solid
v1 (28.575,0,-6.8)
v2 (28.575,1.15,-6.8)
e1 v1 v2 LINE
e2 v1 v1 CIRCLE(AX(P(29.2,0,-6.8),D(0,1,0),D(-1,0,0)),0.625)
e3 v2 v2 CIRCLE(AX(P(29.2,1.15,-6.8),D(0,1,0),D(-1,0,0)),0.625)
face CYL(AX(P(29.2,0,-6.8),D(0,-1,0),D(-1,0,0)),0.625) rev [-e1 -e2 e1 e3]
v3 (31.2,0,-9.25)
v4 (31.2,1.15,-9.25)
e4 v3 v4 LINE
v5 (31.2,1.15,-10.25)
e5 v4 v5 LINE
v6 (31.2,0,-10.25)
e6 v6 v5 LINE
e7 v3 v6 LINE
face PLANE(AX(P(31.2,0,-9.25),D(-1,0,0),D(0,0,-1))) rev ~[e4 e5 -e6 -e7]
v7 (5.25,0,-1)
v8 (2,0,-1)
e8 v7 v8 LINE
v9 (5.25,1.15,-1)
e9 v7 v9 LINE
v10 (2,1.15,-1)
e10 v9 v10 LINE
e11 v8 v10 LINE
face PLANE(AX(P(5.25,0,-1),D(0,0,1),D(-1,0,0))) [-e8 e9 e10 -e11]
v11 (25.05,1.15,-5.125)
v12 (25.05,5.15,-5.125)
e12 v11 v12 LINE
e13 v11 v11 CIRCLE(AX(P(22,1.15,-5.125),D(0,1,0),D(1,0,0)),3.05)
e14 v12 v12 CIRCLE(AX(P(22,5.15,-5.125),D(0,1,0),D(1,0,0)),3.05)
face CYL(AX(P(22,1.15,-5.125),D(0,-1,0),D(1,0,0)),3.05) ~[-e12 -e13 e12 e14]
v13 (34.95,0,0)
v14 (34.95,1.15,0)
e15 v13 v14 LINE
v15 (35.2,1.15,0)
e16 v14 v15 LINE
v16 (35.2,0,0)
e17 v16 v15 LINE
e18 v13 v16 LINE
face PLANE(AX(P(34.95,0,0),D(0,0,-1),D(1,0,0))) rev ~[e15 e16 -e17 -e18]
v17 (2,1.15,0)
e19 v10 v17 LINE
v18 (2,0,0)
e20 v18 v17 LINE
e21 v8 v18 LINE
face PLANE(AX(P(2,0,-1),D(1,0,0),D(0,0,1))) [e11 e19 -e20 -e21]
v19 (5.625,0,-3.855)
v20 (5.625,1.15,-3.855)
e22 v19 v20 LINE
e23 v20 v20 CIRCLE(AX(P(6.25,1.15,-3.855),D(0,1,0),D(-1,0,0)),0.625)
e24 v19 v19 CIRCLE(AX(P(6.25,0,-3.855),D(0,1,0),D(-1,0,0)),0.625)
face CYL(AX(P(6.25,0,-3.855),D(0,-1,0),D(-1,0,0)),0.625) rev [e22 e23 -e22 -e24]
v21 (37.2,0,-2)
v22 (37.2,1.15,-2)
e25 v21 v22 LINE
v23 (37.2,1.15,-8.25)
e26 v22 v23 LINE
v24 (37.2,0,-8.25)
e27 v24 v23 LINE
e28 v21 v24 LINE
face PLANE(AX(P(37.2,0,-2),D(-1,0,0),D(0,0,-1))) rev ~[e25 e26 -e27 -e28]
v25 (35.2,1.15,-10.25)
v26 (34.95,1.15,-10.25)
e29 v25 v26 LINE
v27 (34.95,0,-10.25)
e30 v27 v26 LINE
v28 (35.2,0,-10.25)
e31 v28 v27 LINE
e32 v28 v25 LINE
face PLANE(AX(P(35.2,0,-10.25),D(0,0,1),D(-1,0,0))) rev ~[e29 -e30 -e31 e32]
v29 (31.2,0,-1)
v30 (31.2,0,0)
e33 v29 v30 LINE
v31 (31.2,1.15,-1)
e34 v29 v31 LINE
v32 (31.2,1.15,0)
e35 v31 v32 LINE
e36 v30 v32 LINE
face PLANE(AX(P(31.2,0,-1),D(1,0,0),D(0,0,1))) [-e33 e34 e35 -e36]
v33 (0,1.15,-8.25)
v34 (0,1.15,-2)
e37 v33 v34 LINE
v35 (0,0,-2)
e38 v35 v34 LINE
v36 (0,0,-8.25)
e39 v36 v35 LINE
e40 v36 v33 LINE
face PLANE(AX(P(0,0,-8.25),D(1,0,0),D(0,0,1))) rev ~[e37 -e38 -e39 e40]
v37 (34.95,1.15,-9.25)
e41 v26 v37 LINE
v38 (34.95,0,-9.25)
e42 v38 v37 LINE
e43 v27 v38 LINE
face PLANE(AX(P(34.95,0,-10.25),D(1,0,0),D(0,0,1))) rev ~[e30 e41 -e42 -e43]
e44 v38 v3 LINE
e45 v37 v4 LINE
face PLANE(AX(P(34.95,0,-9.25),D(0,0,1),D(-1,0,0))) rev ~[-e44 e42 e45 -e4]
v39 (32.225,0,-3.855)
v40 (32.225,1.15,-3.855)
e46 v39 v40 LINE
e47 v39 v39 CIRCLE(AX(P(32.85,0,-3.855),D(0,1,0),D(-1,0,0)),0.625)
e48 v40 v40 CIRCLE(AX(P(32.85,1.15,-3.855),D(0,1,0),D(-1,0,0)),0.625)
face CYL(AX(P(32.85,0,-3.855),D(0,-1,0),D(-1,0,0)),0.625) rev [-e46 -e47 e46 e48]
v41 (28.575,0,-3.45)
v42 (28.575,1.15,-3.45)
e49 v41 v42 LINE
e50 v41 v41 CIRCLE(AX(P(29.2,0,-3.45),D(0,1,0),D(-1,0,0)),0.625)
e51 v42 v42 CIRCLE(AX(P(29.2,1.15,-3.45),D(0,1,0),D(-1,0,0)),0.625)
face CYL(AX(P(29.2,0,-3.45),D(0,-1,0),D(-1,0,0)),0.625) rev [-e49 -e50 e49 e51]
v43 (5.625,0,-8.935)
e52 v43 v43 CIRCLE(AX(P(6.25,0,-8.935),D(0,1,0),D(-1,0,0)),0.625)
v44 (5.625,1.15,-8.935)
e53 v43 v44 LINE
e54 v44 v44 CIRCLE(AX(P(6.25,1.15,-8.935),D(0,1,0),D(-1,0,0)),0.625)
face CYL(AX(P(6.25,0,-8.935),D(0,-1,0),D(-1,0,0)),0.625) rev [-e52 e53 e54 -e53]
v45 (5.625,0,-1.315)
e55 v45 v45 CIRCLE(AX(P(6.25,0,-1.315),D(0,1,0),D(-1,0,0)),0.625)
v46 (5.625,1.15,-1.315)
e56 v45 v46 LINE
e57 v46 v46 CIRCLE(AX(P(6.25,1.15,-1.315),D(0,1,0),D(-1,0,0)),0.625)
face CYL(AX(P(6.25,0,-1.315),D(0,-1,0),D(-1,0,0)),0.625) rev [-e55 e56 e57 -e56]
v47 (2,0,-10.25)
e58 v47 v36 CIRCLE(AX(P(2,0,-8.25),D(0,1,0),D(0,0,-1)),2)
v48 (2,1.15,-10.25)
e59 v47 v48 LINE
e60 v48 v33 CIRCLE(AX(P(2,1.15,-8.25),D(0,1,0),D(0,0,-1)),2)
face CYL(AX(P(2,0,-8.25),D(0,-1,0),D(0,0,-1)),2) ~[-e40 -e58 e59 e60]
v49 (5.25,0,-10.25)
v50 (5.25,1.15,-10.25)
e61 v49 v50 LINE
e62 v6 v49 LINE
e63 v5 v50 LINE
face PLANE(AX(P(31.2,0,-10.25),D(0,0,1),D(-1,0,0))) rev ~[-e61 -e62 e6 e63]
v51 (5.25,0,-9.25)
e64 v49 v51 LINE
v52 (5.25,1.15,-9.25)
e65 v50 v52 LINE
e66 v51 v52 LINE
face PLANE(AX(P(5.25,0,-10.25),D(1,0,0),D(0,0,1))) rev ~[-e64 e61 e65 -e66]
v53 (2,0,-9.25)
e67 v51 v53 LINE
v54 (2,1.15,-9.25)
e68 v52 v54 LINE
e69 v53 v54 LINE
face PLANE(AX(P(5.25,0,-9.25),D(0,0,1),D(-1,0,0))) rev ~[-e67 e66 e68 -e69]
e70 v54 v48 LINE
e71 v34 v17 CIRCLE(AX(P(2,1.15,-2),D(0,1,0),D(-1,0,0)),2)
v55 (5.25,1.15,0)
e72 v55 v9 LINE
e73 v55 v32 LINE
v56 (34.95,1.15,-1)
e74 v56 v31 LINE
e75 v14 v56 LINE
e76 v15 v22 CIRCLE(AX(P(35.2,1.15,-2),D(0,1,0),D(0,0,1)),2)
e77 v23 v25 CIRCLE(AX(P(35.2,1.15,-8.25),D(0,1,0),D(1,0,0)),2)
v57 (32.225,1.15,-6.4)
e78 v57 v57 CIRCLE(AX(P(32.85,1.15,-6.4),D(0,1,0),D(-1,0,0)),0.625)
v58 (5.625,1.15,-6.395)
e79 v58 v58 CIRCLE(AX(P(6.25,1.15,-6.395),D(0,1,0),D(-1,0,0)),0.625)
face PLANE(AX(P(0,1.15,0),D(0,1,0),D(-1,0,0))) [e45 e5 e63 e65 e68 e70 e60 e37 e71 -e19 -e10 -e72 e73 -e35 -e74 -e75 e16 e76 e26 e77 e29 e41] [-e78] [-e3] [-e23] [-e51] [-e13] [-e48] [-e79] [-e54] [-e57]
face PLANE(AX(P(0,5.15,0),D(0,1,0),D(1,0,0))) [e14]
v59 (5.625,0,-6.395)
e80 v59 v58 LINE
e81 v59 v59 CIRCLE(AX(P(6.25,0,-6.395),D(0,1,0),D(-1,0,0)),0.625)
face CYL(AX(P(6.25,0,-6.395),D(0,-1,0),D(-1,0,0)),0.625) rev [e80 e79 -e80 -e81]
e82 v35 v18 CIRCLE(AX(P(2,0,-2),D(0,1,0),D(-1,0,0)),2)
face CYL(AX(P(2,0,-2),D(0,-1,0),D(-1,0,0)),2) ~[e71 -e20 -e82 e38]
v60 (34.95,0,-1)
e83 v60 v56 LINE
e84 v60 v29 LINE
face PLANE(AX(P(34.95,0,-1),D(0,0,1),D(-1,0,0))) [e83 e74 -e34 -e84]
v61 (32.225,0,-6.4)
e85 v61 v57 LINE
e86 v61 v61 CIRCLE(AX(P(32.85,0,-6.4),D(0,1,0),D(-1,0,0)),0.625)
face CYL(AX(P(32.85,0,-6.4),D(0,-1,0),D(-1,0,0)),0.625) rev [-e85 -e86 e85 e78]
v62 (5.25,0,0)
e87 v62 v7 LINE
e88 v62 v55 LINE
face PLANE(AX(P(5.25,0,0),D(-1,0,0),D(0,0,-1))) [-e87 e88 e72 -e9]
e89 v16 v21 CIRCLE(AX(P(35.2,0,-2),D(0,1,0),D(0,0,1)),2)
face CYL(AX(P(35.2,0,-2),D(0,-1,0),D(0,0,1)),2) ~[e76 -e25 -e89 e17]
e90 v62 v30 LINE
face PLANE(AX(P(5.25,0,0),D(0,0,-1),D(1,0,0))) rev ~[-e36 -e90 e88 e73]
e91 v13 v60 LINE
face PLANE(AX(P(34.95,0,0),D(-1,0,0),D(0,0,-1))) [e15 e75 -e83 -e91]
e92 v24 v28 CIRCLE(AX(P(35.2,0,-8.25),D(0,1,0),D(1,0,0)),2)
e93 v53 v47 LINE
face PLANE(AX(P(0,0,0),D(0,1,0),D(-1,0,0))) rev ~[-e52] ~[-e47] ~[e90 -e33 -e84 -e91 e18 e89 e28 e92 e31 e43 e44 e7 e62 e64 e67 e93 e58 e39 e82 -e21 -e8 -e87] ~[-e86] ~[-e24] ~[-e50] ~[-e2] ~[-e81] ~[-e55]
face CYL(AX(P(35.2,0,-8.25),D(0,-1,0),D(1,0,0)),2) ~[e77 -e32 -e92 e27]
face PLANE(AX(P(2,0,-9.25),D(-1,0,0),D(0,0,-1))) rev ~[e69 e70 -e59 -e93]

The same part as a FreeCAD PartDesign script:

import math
import FreeCAD as App
import Part
import Sketcher

V = App.Vector
Q = App.Units.Quantity

doc = App.newDocument("Part")
body = doc.addObject("PartDesign::Body", "Body")

# Sketch on XZ plane
sketch1 = doc.addObject("Sketcher::SketchObject", "Sketch")
body.addObject(sketch1)
sketch1.AttachmentSupport = (doc.XZ_Plane, [""])
sketch1.MapMode = "FlatFace"
sketch1.addGeometry(Part.ArcOfCircle(Part.Circle(V(35.2, -2, 0), V(0, 0, 1), 2), math.radians(0), math.radians(90)), False)
sketch1.addGeometry(Part.LineSegment(V(37.2, -2, 0), V(37.2, -8.25, 0)), False)
sketch1.addGeometry(Part.ArcOfCircle(Part.Circle(V(35.2, -8.25, 0), V(0, 0, 1), 2), math.radians(-90), math.radians(0)), False)
sketch1.addGeometry(Part.LineSegment(V(35.2, -10.25, 0), V(34.95, -10.25, 0)), False)
sketch1.addGeometry(Part.LineSegment(V(34.95, -10.25, 0), V(34.95, -9.25, 0)), False)
sketch1.addGeometry(Part.LineSegment(V(34.95, -9.25, 0), V(31.2, -9.25, 0)), False)
sketch1.addGeometry(Part.LineSegment(V(31.2, -9.25, 0), V(31.2, -10.25, 0)), False)
sketch1.addGeometry(Part.LineSegment(V(31.2, -10.25, 0), V(5.25, -10.25, 0)), False)
sketch1.addGeometry(Part.LineSegment(V(5.25, -10.25, 0), V(5.25, -9.25, 0)), False)
sketch1.addGeometry(Part.LineSegment(V(5.25, -9.25, 0), V(2, -9.25, 0)), False)
sketch1.addGeometry(Part.LineSegment(V(2, -9.25, 0), V(2, -10.25, 0)), False)
sketch1.addGeometry(Part.ArcOfCircle(Part.Circle(V(2, -8.25, 0), V(0, 0, 1), 2), math.radians(180), math.radians(270)), False)
sketch1.addGeometry(Part.LineSegment(V(0, -8.25, 0), V(0, -2, 0)), False)
sketch1.addGeometry(Part.ArcOfCircle(Part.Circle(V(2, -2, 0), V(0, 0, 1), 2), math.radians(90), math.radians(180)), False)
sketch1.addGeometry(Part.LineSegment(V(2, 0, 0), V(2, -1, 0)), False)
sketch1.addGeometry(Part.LineSegment(V(2, -1, 0), V(5.25, -1, 0)), False)
sketch1.addGeometry(Part.LineSegment(V(5.25, -1, 0), V(5.25, 0, 0)), False)
sketch1.addGeometry(Part.LineSegment(V(5.25, 0, 0), V(31.2, 0, 0)), False)
sketch1.addGeometry(Part.LineSegment(V(31.2, 0, 0), V(31.2, -1, 0)), False)
sketch1.addGeometry(Part.LineSegment(V(31.2, -1, 0), V(34.95, -1, 0)), False)
sketch1.addGeometry(Part.LineSegment(V(34.95, -1, 0), V(34.95, 0, 0)), False)
sketch1.addGeometry(Part.LineSegment(V(34.95, 0, 0), V(35.2, 0, 0)), False)
sketch1.addGeometry(Part.Circle(V(29.2, -6.8, 0), V(0, 0, 1), 0.625), False)
sketch1.addGeometry(Part.Circle(V(32.85, -6.4, 0), V(0, 0, 1), 0.625), False)
sketch1.addGeometry(Part.Circle(V(6.25, -8.935, 0), V(0, 0, 1), 0.625), False)
sketch1.addGeometry(Part.Circle(V(6.25, -6.395, 0), V(0, 0, 1), 0.625), False)
sketch1.addGeometry(Part.Circle(V(32.85, -3.855, 0), V(0, 0, 1), 0.625), False)
sketch1.addGeometry(Part.Circle(V(29.2, -3.45, 0), V(0, 0, 1), 0.625), False)
sketch1.addGeometry(Part.Circle(V(6.25, -3.855, 0), V(0, 0, 1), 0.625), False)
sketch1.addGeometry(Part.Circle(V(6.25, -1.315, 0), V(0, 0, 1), 0.625), False)
sketch1.addConstraint(Sketcher.Constraint("Tangent", 0, 1, 1, 1))
sketch1.addConstraint(Sketcher.Constraint("Tangent", 1, 2, 2, 2))
sketch1.addConstraint(Sketcher.Constraint("Tangent", 2, 1, 3, 1))
sketch1.addConstraint(Sketcher.Constraint("Coincident", 3, 2, 4, 1))
sketch1.addConstraint(Sketcher.Constraint("Coincident", 4, 2, 5, 1))
sketch1.addConstraint(Sketcher.Constraint("Coincident", 5, 2, 6, 1))
sketch1.addConstraint(Sketcher.Constraint("Coincident", 6, 2, 7, 1))
sketch1.addConstraint(Sketcher.Constraint("Coincident", 7, 2, 8, 1))
sketch1.addConstraint(Sketcher.Constraint("Coincident", 8, 2, 9, 1))
sketch1.addConstraint(Sketcher.Constraint("Coincident", 9, 2, 10, 1))
sketch1.addConstraint(Sketcher.Constraint("Coincident", 10, 2, 11, 2))
sketch1.addConstraint(Sketcher.Constraint("Tangent", 11, 1, 12, 1))
sketch1.addConstraint(Sketcher.Constraint("Tangent", 12, 2, 13, 2))
sketch1.addConstraint(Sketcher.Constraint("Coincident", 13, 1, 14, 1))
sketch1.addConstraint(Sketcher.Constraint("Coincident", 14, 2, 15, 1))
sketch1.addConstraint(Sketcher.Constraint("Coincident", 15, 2, 16, 1))
sketch1.addConstraint(Sketcher.Constraint("Coincident", 16, 2, 17, 1))
sketch1.addConstraint(Sketcher.Constraint("Coincident", 17, 2, 18, 1))
sketch1.addConstraint(Sketcher.Constraint("Coincident", 18, 2, 19, 1))
sketch1.addConstraint(Sketcher.Constraint("Coincident", 19, 2, 20, 1))
sketch1.addConstraint(Sketcher.Constraint("Coincident", 20, 2, 21, 1))
sketch1.addConstraint(Sketcher.Constraint("Tangent", 21, 2, 0, 2))
sketch1.addConstraint(Sketcher.Constraint("Vertical", 1))
sketch1.addConstraint(Sketcher.Constraint("Horizontal", 3))
sketch1.addConstraint(Sketcher.Constraint("Vertical", 4))
sketch1.addConstraint(Sketcher.Constraint("Horizontal", 5))
sketch1.addConstraint(Sketcher.Constraint("Vertical", 6))
sketch1.addConstraint(Sketcher.Constraint("Horizontal", 7))
sketch1.addConstraint(Sketcher.Constraint("Vertical", 8))
sketch1.addConstraint(Sketcher.Constraint("Horizontal", 9))
sketch1.addConstraint(Sketcher.Constraint("Vertical", 10))
sketch1.addConstraint(Sketcher.Constraint("Vertical", 12))
sketch1.addConstraint(Sketcher.Constraint("Vertical", 14))
sketch1.addConstraint(Sketcher.Constraint("Horizontal", 15))
sketch1.addConstraint(Sketcher.Constraint("Vertical", 16))
sketch1.addConstraint(Sketcher.Constraint("Horizontal", 17))
sketch1.addConstraint(Sketcher.Constraint("Vertical", 18))
sketch1.addConstraint(Sketcher.Constraint("Horizontal", 19))
sketch1.addConstraint(Sketcher.Constraint("Vertical", 20))
sketch1.addConstraint(Sketcher.Constraint("Horizontal", 21))
sketch1.addConstraint(Sketcher.Constraint("Equal", 0, 2))
sketch1.addConstraint(Sketcher.Constraint("Equal", 2, 11))
sketch1.addConstraint(Sketcher.Constraint("Equal", 11, 13))
sketch1.addConstraint(Sketcher.Constraint("Equal", 22, 23))
sketch1.addConstraint(Sketcher.Constraint("Equal", 23, 24))
sketch1.addConstraint(Sketcher.Constraint("Equal", 24, 25))
sketch1.addConstraint(Sketcher.Constraint("Equal", 25, 26))
sketch1.addConstraint(Sketcher.Constraint("Equal", 26, 27))
sketch1.addConstraint(Sketcher.Constraint("Equal", 27, 28))
sketch1.addConstraint(Sketcher.Constraint("Equal", 28, 29))
sketch1.addConstraint(Sketcher.Constraint("PointOnObject", 11, 1, -2))
sketch1.addConstraint(Sketcher.Constraint("PointOnObject", 13, 1, -1))
sketch1.addConstraint(Sketcher.Constraint("PointOnObject", 16, 2, -1))
sketch1.addConstraint(Sketcher.Constraint("PointOnObject", 20, 2, -1))
sketch1.addConstraint(Sketcher.Constraint("Horizontal", 2, 3, 11, 3))
sketch1.addConstraint(Sketcher.Constraint("Horizontal", 26, 3, 28, 3))
sketch1.addConstraint(Sketcher.Constraint("Horizontal", 3, 2, 6, 2))
sketch1.addConstraint(Sketcher.Constraint("Horizontal", 5, 2, 8, 2))
sketch1.addConstraint(Sketcher.Constraint("Horizontal", 15, 2, 18, 2))
sketch1.addConstraint(Sketcher.Constraint("Vertical", 24, 3, 25, 3))
sketch1.addConstraint(Sketcher.Constraint("Vertical", 23, 3, 26, 3))
sketch1.addConstraint(Sketcher.Constraint("Vertical", 22, 3, 27, 3))
sketch1.addConstraint(Sketcher.Constraint("Vertical", 25, 3, 28, 3))
sketch1.addConstraint(Sketcher.Constraint("Vertical", 28, 3, 29, 3))
sketch1.addConstraint(Sketcher.Constraint("Vertical", 13, 3, 9, 2))
sketch1.addConstraint(Sketcher.Constraint("Vertical", 10, 2, 13, 1))
sketch1.addConstraint(Sketcher.Constraint("Vertical", 8, 2, 15, 2))
sketch1.addConstraint(Sketcher.Constraint("Vertical", 6, 2, 17, 2))
sketch1.addConstraint(Sketcher.Constraint("Vertical", 4, 2, 19, 2))
sketch1.addConstraint(Sketcher.Constraint("Equal", 10, 14))
sketch1.addConstraint(Sketcher.Constraint("Radius", 0, Q("2 mm")))
sketch1.addConstraint(Sketcher.Constraint("Diameter", 22, Q("1.25 mm")))
sketch1.addConstraint(Sketcher.Constraint("DistanceY", 4, 1, 4, 2, Q("1 mm")))
sketch1.addConstraint(Sketcher.Constraint("DistanceX", 22, 3, 2, 3, Q("6 mm")))
sketch1.addConstraint(Sketcher.Constraint("DistanceX", 22, 3, 5, 2, Q("2 mm")))
sketch1.addConstraint(Sketcher.Constraint("DistanceX", 7, 2, 24, 3, Q("1 mm")))
sketch1.addConstraint(Sketcher.Constraint("DistanceX", 5, 2, 5, 1, Q("3.75 mm")))
sketch1.addConstraint(Sketcher.Constraint("DistanceY", 1, 2, 1, 1, Q("6.25 mm")))
sketch1.addConstraint(Sketcher.Constraint("DistanceX", -1, 1, 0, 1, Q("37.2 mm")))
sketch1.addConstraint(Sketcher.Constraint("DistanceX", -1, 1, 24, 3, Q("6.25 mm")))
sketch1.addConstraint(Sketcher.Constraint("DistanceY", 27, 3, -1, 1, Q("3.45 mm")))
sketch1.addConstraint(Sketcher.Constraint("DistanceY", 24, 3, 25, 3, Q("2.54 mm")))
sketch1.addConstraint(Sketcher.Constraint("DistanceY", 25, 3, 26, 3, Q("2.54 mm")))
sketch1.addConstraint(Sketcher.Constraint("DistanceY", 28, 3, 29, 3, Q("2.54 mm")))
sketch1.addConstraint(Sketcher.Constraint("DistanceX", 26, 3, 0, 1, Q("4.35 mm")))
sketch1.addConstraint(Sketcher.Constraint("DistanceY", 2, 1, 23, 3, Q("3.85 mm")))
sketch1.addConstraint(Sketcher.Constraint("DistanceY", 2, 1, 22, 3, Q("3.45 mm")))
sketch1.addConstraint(Sketcher.Constraint("DistanceY", 26, 3, -1, 1, Q("3.855 mm")))
pad1 = doc.addObject("PartDesign::Pad", "Pad")
body.addObject(pad1)
pad1.Profile = sketch1
pad1.Length = 1.15
pad1.Reversed = True

# Sketch on XZ plane
sketch2 = doc.addObject("Sketcher::SketchObject", "Sketch001")
body.addObject(sketch2)
sketch2.AttachmentSupport = (doc.XZ_Plane, [""])
sketch2.MapMode = "FlatFace"
sketch2.AttachmentOffset = App.Placement(V(0, 0, -1.15), App.Rotation())
sketch2.addGeometry(Part.Circle(V(22, -5.125, 0), V(0, 0, 1), 3.05), False)
sketch2.addConstraint(Sketcher.Constraint("Diameter", 0, Q("6.1 mm")))
sketch2.addConstraint(Sketcher.Constraint("DistanceX", -1, 1, 0, 3, Q("22 mm")))
sketch2.addConstraint(Sketcher.Constraint("DistanceY", 0, 3, -1, 1, Q("5.125 mm")))
pad2 = doc.addObject("PartDesign::Pad", "Pad001")
body.addObject(pad2)
pad2.Profile = sketch2
pad2.Length = 4
pad2.Reversed = True

doc.recompute()
